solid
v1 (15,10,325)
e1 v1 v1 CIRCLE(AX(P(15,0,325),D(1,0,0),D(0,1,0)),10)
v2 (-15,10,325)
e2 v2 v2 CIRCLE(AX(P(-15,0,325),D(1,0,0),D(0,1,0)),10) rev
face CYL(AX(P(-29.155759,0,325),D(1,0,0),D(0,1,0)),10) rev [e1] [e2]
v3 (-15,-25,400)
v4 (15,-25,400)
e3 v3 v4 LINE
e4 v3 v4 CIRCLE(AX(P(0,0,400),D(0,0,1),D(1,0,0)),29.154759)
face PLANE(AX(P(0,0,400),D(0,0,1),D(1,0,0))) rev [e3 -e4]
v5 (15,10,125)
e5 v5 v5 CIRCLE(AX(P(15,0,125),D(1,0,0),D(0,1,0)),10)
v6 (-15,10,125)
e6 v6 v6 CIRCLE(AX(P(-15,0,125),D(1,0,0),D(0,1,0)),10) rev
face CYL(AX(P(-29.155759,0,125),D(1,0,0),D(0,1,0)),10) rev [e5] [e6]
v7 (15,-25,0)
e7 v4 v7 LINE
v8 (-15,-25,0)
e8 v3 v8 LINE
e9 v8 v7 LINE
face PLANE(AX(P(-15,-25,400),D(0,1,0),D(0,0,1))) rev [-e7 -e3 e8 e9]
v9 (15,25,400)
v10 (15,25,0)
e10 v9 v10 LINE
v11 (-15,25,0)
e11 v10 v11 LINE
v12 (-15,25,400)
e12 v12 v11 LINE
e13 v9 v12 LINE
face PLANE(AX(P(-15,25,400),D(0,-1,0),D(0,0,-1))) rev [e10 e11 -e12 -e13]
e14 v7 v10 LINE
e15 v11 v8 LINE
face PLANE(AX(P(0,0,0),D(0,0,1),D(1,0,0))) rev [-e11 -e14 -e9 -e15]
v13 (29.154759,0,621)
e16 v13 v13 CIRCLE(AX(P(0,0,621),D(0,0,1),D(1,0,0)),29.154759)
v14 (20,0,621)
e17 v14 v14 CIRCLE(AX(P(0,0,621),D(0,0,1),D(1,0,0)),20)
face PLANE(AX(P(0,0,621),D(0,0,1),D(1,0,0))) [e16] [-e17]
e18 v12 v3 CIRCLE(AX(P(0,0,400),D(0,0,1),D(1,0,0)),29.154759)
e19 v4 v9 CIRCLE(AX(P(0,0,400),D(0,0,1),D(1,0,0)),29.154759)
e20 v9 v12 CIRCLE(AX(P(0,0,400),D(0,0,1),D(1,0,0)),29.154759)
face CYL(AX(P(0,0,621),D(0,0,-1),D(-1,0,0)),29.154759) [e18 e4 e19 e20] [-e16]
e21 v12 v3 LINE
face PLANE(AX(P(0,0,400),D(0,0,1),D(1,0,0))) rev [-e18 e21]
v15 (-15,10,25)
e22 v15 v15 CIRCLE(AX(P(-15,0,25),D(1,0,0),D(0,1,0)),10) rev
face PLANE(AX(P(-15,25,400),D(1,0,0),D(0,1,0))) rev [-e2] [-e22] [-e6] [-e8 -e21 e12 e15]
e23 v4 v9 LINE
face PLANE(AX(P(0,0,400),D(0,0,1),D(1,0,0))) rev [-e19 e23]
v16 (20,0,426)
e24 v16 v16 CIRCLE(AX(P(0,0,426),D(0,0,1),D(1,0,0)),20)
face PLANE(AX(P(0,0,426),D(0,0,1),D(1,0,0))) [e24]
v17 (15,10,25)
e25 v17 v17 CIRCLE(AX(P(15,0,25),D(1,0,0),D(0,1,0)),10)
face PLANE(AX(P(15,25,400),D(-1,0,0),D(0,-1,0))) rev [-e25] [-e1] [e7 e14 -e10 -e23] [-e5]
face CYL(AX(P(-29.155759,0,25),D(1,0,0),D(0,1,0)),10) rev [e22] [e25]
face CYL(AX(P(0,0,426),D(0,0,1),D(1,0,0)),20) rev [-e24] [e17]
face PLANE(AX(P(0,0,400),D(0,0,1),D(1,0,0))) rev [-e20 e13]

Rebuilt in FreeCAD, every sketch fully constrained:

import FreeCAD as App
import Part
import Sketcher

V = App.Vector
Q = App.Units.Quantity

doc = App.newDocument("Part")
params = doc.addObject("Spreadsheet::Sheet", "Params")
for row, (alias, value) in enumerate([
    ("sketch1_width", "30 mm"),
    ("sketch1_height", "50 mm"),
    ("pad1_length", "400 mm"),
    ("pad2_length", "221 mm"),
    ("sketch3_diameter", "40 mm"),
    ("pocket1_length", "195 mm"),
    ("sketch4_diameter", "20 mm"),
    ("sketch5_diameter", "20 mm"),
    ("sketch6_diameter", "20 mm"),
], start=1):
    params.set(f"A{row}", alias)
    params.set(f"B{row}", "=" + value)
    params.setAlias(f"B{row}", alias)

body = doc.addObject("PartDesign::Body", "Body")

# Sketch on XY plane
sketch1 = body.newObject("Sketcher::SketchObject", "Sketch")
sketch1.AttachmentSupport = (doc.getObject("XY_Plane"), [""])
sketch1.MapMode = "FlatFace"
sketch1.addGeometry([
    Part.LineSegment(V(-15, 25, 0), V(-15, -25, 0)),
    Part.LineSegment(V(-15, -25, 0), V(15, -25, 0)),
    Part.LineSegment(V(15, -25, 0), V(15, 25, 0)),
    Part.LineSegment(V(15, 25, 0), V(-15, 25, 0)),
], False)
sketch1.addConstraint([
    Sketcher.Constraint("Coincident", 0, 2, 1, 1),
    Sketcher.Constraint("Coincident", 1, 2, 2, 1),
    Sketcher.Constraint("Coincident", 2, 2, 3, 1),
    Sketcher.Constraint("Coincident", 3, 2, 0, 1),
    Sketcher.Constraint("Vertical", 0),
    Sketcher.Constraint("Horizontal", 1),
    Sketcher.Constraint("Vertical", 2),
    Sketcher.Constraint("Horizontal", 3),
    Sketcher.Constraint("Symmetric", 0, 2, 2, 2, -1, 1),
    Sketcher.Constraint("DistanceX", 1, 1, 1, 2, Q("30 mm")),
    Sketcher.Constraint("DistanceY", 0, 2, 0, 1, Q("50 mm")),
])
sketch1.setExpression("Constraints[9]", "Params.sketch1_width")
sketch1.setExpression("Constraints[10]", "Params.sketch1_height")
pad1 = body.newObject("PartDesign::Pad", "Pad")
pad1.Profile = sketch1
pad1.setExpression("Length", "Params.pad1_length")

# Sketch on XY plane
sketch2 = body.newObject("Sketcher::SketchObject", "Sketch001")
sketch2.AttachmentSupport = (doc.getObject("XY_Plane"), [""])
sketch2.MapMode = "FlatFace"
sketch2.AttachmentOffset = App.Placement(V(0, 0, 400), App.Rotation())
sketch2.addGeometry(Part.Circle(V(0, 0, 0), V(0, 0, 1), 29.154759), False)
sketch2.addConstraint([
    Sketcher.Constraint("Coincident", 0, 3, -1, 1),
    Sketcher.Constraint("Diameter", 0, Q("58.309519 mm")),
])
pad2 = body.newObject("PartDesign::Pad", "Pad001")
pad2.Profile = sketch2
pad2.setExpression("Length", "Params.pad2_length")

# Sketch on XY plane
sketch3 = body.newObject("Sketcher::SketchObject", "Sketch002")
sketch3.AttachmentSupport = (doc.getObject("XY_Plane"), [""])
sketch3.MapMode = "FlatFace"
sketch3.AttachmentOffset = App.Placement(V(0, 0, 621), App.Rotation())
sketch3.addGeometry(Part.Circle(V(0, 0, 0), V(0, 0, 1), 20), False)
sketch3.addConstraint([
    Sketcher.Constraint("Coincident", 0, 3, -1, 1),
    Sketcher.Constraint("Diameter", 0, Q("40 mm")),
])
sketch3.setExpression("Constraints[1]", "Params.sketch3_diameter")
pocket1 = body.newObject("PartDesign::Pocket", "Pocket")
pocket1.Profile = sketch3
pocket1.setExpression("Length", "Params.pocket1_length")

# Sketch on YZ plane
sketch4 = body.newObject("Sketcher::SketchObject", "Sketch003")
sketch4.AttachmentSupport = (doc.getObject("YZ_Plane"), [""])
sketch4.MapMode = "FlatFace"
sketch4.AttachmentOffset = App.Placement(V(0, 0, 15), App.Rotation())
sketch4.addGeometry(Part.Circle(V(0, 25, 0), V(0, 0, 1), 10), False)
sketch4.addConstraint([
    Sketcher.Constraint("PointOnObject", 0, 3, -2),
    Sketcher.Constraint("Diameter", 0, Q("20 mm")),
    Sketcher.Constraint("DistanceY", -1, 1, 0, 3, Q("25 mm")),
])
sketch4.setExpression("Constraints[1]", "Params.sketch4_diameter")
pocket2 = body.newObject("PartDesign::Pocket", "Pocket001")
pocket2.Profile = sketch4
pocket2.Type = "UpToFirst"

# Sketch on YZ plane
sketch5 = body.newObject("Sketcher::SketchObject", "Sketch004")
sketch5.AttachmentSupport = (doc.getObject("YZ_Plane"), [""])
sketch5.MapMode = "FlatFace"
sketch5.AttachmentOffset = App.Placement(V(0, 0, 15), App.Rotation())
sketch5.addGeometry(Part.Circle(V(0, 125, 0), V(0, 0, 1), 10), False)
sketch5.addConstraint([
    Sketcher.Constraint("PointOnObject", 0, 3, -2),
    Sketcher.Constraint("Diameter", 0, Q("20 mm")),
    Sketcher.Constraint("DistanceY", -1, 1, 0, 3, Q("125 mm")),
])
sketch5.setExpression("Constraints[1]", "Params.sketch5_diameter")
pocket3 = body.newObject("PartDesign::Pocket", "Pocket002")
pocket3.Profile = sketch5
pocket3.Type = "UpToFirst"

# Sketch on YZ plane
sketch6 = body.newObject("Sketcher::SketchObject", "Sketch005")
sketch6.AttachmentSupport = (doc.getObject("YZ_Plane"), [""])
sketch6.MapMode = "FlatFace"
sketch6.AttachmentOffset = App.Placement(V(0, 0, 15), App.Rotation())
sketch6.addGeometry(Part.Circle(V(0, 325, 0), V(0, 0, 1), 10), False)
sketch6.addConstraint([
    Sketcher.Constraint("PointOnObject", 0, 3, -2),
    Sketcher.Constraint("Diameter", 0, Q("20 mm")),
    Sketcher.Constraint("DistanceY", -1, 1, 0, 3, Q("325 mm")),
])
sketch6.setExpression("Constraints[1]", "Params.sketch6_diameter")
pocket4 = body.newObject("PartDesign::Pocket", "Pocket003")
pocket4.Profile = sketch6
pocket4.Type = "UpToFirst"

doc.recompute()
